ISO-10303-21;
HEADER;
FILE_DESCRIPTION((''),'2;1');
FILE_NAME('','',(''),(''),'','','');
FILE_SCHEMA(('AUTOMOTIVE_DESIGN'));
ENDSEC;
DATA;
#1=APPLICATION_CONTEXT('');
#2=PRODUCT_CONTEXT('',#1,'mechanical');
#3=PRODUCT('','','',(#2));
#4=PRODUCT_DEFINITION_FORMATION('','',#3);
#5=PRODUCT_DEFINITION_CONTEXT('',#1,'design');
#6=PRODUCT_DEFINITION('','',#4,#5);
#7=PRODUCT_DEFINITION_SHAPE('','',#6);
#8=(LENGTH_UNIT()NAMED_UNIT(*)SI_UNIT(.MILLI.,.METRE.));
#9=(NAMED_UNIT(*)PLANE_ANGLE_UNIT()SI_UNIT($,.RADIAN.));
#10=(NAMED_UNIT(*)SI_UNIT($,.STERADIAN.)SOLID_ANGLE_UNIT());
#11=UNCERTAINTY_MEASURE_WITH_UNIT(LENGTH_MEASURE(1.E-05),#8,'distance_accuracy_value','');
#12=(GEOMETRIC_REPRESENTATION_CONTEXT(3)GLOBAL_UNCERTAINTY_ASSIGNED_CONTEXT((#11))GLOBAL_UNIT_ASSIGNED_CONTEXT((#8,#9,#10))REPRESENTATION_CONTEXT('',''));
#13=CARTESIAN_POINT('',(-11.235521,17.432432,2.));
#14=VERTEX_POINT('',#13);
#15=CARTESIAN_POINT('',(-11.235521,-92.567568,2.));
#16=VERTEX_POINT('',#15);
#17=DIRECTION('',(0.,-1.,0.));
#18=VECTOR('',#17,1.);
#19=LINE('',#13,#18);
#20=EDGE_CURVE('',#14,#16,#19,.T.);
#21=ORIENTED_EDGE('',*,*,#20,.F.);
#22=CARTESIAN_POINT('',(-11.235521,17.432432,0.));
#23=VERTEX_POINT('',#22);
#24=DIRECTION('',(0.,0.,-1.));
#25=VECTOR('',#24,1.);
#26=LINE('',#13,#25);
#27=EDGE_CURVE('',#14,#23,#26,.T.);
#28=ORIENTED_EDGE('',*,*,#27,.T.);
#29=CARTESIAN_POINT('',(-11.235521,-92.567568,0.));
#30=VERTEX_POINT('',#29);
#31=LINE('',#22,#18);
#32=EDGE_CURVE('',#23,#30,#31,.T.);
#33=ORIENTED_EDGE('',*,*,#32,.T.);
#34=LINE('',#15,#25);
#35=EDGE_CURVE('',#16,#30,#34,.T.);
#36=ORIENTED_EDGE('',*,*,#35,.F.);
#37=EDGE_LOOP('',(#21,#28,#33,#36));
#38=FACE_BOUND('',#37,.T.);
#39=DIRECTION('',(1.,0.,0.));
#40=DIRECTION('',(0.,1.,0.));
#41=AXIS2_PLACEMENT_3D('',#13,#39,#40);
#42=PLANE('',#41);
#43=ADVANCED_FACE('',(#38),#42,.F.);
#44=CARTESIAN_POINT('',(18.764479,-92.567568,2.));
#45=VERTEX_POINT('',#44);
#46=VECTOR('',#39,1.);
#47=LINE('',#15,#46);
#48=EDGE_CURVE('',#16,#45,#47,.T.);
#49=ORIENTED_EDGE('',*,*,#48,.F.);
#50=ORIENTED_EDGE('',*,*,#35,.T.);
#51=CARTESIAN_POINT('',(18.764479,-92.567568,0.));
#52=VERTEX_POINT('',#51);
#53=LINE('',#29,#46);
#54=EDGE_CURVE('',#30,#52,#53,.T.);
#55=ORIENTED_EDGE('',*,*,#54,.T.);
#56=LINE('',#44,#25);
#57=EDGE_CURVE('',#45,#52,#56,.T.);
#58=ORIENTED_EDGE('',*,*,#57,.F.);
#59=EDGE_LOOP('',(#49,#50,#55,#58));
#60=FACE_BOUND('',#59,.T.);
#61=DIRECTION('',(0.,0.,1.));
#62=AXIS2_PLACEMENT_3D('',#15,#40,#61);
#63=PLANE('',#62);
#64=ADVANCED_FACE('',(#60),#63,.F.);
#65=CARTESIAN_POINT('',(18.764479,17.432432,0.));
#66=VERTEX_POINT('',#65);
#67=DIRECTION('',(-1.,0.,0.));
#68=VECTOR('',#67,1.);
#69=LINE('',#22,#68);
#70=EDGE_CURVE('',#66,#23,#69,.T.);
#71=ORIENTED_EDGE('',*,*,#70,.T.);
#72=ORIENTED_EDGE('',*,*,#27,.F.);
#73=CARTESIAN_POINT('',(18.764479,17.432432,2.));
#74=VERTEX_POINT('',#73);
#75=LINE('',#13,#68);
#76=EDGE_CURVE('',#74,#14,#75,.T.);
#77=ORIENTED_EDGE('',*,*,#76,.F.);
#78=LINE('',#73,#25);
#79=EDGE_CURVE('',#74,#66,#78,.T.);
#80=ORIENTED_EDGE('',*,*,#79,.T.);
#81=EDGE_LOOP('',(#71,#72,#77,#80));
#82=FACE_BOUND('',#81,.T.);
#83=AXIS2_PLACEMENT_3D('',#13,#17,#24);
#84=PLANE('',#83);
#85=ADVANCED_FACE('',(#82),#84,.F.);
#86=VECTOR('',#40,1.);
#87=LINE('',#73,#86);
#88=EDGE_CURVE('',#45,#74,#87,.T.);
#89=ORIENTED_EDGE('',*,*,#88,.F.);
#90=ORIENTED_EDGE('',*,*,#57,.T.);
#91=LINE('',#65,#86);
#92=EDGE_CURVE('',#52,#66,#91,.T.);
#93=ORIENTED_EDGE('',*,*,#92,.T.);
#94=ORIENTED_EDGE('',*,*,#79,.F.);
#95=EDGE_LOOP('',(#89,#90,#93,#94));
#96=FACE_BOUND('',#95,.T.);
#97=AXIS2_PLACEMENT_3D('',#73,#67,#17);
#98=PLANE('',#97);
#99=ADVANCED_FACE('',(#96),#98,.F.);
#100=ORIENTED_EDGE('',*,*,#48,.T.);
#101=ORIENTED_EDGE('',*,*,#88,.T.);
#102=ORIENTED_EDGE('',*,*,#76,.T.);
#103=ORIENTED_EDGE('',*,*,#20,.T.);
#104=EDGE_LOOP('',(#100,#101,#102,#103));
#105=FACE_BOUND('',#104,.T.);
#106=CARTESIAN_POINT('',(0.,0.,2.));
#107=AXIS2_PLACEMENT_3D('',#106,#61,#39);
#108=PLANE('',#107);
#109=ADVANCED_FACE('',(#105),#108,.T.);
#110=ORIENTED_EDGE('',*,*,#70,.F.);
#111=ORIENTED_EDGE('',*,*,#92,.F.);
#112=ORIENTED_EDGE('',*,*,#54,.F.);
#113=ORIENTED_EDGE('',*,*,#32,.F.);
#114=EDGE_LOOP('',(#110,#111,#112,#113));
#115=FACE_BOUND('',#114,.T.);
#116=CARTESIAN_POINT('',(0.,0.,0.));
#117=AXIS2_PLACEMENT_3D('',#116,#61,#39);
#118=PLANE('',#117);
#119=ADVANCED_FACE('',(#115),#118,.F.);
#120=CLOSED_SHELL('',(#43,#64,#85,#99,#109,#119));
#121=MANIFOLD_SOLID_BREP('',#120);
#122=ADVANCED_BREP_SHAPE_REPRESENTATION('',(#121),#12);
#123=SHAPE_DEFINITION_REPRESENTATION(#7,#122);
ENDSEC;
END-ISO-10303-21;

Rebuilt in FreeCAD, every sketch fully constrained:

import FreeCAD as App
import Part
import Sketcher


def add_polygon(sketch, points):
    """Adds a closed chain of lines whose ends are joined by coincident constraints."""
    first, n = sketch.GeometryCount, len(points)
    for a, b in zip(points, points[1:] + points[:1]):
        sketch.addGeometry(Part.LineSegment(App.Vector(*a, 0), App.Vector(*b, 0)), False)
    for i in range(n):
        sketch.addConstraint(Sketcher.Constraint("Coincident", first + i, 2, first + (i + 1) % n, 1))

doc = App.newDocument("Part")
body = doc.addObject("PartDesign::Body", "Body")

# Sketch on XY plane
sketch1 = body.newObject("Sketcher::SketchObject", "Sketch")
sketch1.AttachmentSupport = (doc.getObject("XY_Plane"), [""])
sketch1.MapMode = "FlatFace"
add_polygon(sketch1, [(-11, 17), (-11, -93), (19, -93), (19, 17)])  # lines 0-3
sketch1.addConstraint([
    Sketcher.Constraint("Vertical", 0),
    Sketcher.Constraint("Horizontal", 1),
    Sketcher.Constraint("Vertical", 2),
    Sketcher.Constraint("Horizontal", 3),
    Sketcher.Constraint("DistanceX", 1, 1, 1, 2, 30.0),
    Sketcher.Constraint("DistanceY", 0, 2, 0, 1, 110.0),
    Sketcher.Constraint("DistanceX", 0, 2, -1, 1, 11.235521),
    Sketcher.Constraint("DistanceY", 0, 2, -1, 1, 92.567568),
])
pad1 = body.newObject("PartDesign::Pad", "Pad")
pad1.Profile = sketch1
pad1.Length = 2

doc.recompute()
